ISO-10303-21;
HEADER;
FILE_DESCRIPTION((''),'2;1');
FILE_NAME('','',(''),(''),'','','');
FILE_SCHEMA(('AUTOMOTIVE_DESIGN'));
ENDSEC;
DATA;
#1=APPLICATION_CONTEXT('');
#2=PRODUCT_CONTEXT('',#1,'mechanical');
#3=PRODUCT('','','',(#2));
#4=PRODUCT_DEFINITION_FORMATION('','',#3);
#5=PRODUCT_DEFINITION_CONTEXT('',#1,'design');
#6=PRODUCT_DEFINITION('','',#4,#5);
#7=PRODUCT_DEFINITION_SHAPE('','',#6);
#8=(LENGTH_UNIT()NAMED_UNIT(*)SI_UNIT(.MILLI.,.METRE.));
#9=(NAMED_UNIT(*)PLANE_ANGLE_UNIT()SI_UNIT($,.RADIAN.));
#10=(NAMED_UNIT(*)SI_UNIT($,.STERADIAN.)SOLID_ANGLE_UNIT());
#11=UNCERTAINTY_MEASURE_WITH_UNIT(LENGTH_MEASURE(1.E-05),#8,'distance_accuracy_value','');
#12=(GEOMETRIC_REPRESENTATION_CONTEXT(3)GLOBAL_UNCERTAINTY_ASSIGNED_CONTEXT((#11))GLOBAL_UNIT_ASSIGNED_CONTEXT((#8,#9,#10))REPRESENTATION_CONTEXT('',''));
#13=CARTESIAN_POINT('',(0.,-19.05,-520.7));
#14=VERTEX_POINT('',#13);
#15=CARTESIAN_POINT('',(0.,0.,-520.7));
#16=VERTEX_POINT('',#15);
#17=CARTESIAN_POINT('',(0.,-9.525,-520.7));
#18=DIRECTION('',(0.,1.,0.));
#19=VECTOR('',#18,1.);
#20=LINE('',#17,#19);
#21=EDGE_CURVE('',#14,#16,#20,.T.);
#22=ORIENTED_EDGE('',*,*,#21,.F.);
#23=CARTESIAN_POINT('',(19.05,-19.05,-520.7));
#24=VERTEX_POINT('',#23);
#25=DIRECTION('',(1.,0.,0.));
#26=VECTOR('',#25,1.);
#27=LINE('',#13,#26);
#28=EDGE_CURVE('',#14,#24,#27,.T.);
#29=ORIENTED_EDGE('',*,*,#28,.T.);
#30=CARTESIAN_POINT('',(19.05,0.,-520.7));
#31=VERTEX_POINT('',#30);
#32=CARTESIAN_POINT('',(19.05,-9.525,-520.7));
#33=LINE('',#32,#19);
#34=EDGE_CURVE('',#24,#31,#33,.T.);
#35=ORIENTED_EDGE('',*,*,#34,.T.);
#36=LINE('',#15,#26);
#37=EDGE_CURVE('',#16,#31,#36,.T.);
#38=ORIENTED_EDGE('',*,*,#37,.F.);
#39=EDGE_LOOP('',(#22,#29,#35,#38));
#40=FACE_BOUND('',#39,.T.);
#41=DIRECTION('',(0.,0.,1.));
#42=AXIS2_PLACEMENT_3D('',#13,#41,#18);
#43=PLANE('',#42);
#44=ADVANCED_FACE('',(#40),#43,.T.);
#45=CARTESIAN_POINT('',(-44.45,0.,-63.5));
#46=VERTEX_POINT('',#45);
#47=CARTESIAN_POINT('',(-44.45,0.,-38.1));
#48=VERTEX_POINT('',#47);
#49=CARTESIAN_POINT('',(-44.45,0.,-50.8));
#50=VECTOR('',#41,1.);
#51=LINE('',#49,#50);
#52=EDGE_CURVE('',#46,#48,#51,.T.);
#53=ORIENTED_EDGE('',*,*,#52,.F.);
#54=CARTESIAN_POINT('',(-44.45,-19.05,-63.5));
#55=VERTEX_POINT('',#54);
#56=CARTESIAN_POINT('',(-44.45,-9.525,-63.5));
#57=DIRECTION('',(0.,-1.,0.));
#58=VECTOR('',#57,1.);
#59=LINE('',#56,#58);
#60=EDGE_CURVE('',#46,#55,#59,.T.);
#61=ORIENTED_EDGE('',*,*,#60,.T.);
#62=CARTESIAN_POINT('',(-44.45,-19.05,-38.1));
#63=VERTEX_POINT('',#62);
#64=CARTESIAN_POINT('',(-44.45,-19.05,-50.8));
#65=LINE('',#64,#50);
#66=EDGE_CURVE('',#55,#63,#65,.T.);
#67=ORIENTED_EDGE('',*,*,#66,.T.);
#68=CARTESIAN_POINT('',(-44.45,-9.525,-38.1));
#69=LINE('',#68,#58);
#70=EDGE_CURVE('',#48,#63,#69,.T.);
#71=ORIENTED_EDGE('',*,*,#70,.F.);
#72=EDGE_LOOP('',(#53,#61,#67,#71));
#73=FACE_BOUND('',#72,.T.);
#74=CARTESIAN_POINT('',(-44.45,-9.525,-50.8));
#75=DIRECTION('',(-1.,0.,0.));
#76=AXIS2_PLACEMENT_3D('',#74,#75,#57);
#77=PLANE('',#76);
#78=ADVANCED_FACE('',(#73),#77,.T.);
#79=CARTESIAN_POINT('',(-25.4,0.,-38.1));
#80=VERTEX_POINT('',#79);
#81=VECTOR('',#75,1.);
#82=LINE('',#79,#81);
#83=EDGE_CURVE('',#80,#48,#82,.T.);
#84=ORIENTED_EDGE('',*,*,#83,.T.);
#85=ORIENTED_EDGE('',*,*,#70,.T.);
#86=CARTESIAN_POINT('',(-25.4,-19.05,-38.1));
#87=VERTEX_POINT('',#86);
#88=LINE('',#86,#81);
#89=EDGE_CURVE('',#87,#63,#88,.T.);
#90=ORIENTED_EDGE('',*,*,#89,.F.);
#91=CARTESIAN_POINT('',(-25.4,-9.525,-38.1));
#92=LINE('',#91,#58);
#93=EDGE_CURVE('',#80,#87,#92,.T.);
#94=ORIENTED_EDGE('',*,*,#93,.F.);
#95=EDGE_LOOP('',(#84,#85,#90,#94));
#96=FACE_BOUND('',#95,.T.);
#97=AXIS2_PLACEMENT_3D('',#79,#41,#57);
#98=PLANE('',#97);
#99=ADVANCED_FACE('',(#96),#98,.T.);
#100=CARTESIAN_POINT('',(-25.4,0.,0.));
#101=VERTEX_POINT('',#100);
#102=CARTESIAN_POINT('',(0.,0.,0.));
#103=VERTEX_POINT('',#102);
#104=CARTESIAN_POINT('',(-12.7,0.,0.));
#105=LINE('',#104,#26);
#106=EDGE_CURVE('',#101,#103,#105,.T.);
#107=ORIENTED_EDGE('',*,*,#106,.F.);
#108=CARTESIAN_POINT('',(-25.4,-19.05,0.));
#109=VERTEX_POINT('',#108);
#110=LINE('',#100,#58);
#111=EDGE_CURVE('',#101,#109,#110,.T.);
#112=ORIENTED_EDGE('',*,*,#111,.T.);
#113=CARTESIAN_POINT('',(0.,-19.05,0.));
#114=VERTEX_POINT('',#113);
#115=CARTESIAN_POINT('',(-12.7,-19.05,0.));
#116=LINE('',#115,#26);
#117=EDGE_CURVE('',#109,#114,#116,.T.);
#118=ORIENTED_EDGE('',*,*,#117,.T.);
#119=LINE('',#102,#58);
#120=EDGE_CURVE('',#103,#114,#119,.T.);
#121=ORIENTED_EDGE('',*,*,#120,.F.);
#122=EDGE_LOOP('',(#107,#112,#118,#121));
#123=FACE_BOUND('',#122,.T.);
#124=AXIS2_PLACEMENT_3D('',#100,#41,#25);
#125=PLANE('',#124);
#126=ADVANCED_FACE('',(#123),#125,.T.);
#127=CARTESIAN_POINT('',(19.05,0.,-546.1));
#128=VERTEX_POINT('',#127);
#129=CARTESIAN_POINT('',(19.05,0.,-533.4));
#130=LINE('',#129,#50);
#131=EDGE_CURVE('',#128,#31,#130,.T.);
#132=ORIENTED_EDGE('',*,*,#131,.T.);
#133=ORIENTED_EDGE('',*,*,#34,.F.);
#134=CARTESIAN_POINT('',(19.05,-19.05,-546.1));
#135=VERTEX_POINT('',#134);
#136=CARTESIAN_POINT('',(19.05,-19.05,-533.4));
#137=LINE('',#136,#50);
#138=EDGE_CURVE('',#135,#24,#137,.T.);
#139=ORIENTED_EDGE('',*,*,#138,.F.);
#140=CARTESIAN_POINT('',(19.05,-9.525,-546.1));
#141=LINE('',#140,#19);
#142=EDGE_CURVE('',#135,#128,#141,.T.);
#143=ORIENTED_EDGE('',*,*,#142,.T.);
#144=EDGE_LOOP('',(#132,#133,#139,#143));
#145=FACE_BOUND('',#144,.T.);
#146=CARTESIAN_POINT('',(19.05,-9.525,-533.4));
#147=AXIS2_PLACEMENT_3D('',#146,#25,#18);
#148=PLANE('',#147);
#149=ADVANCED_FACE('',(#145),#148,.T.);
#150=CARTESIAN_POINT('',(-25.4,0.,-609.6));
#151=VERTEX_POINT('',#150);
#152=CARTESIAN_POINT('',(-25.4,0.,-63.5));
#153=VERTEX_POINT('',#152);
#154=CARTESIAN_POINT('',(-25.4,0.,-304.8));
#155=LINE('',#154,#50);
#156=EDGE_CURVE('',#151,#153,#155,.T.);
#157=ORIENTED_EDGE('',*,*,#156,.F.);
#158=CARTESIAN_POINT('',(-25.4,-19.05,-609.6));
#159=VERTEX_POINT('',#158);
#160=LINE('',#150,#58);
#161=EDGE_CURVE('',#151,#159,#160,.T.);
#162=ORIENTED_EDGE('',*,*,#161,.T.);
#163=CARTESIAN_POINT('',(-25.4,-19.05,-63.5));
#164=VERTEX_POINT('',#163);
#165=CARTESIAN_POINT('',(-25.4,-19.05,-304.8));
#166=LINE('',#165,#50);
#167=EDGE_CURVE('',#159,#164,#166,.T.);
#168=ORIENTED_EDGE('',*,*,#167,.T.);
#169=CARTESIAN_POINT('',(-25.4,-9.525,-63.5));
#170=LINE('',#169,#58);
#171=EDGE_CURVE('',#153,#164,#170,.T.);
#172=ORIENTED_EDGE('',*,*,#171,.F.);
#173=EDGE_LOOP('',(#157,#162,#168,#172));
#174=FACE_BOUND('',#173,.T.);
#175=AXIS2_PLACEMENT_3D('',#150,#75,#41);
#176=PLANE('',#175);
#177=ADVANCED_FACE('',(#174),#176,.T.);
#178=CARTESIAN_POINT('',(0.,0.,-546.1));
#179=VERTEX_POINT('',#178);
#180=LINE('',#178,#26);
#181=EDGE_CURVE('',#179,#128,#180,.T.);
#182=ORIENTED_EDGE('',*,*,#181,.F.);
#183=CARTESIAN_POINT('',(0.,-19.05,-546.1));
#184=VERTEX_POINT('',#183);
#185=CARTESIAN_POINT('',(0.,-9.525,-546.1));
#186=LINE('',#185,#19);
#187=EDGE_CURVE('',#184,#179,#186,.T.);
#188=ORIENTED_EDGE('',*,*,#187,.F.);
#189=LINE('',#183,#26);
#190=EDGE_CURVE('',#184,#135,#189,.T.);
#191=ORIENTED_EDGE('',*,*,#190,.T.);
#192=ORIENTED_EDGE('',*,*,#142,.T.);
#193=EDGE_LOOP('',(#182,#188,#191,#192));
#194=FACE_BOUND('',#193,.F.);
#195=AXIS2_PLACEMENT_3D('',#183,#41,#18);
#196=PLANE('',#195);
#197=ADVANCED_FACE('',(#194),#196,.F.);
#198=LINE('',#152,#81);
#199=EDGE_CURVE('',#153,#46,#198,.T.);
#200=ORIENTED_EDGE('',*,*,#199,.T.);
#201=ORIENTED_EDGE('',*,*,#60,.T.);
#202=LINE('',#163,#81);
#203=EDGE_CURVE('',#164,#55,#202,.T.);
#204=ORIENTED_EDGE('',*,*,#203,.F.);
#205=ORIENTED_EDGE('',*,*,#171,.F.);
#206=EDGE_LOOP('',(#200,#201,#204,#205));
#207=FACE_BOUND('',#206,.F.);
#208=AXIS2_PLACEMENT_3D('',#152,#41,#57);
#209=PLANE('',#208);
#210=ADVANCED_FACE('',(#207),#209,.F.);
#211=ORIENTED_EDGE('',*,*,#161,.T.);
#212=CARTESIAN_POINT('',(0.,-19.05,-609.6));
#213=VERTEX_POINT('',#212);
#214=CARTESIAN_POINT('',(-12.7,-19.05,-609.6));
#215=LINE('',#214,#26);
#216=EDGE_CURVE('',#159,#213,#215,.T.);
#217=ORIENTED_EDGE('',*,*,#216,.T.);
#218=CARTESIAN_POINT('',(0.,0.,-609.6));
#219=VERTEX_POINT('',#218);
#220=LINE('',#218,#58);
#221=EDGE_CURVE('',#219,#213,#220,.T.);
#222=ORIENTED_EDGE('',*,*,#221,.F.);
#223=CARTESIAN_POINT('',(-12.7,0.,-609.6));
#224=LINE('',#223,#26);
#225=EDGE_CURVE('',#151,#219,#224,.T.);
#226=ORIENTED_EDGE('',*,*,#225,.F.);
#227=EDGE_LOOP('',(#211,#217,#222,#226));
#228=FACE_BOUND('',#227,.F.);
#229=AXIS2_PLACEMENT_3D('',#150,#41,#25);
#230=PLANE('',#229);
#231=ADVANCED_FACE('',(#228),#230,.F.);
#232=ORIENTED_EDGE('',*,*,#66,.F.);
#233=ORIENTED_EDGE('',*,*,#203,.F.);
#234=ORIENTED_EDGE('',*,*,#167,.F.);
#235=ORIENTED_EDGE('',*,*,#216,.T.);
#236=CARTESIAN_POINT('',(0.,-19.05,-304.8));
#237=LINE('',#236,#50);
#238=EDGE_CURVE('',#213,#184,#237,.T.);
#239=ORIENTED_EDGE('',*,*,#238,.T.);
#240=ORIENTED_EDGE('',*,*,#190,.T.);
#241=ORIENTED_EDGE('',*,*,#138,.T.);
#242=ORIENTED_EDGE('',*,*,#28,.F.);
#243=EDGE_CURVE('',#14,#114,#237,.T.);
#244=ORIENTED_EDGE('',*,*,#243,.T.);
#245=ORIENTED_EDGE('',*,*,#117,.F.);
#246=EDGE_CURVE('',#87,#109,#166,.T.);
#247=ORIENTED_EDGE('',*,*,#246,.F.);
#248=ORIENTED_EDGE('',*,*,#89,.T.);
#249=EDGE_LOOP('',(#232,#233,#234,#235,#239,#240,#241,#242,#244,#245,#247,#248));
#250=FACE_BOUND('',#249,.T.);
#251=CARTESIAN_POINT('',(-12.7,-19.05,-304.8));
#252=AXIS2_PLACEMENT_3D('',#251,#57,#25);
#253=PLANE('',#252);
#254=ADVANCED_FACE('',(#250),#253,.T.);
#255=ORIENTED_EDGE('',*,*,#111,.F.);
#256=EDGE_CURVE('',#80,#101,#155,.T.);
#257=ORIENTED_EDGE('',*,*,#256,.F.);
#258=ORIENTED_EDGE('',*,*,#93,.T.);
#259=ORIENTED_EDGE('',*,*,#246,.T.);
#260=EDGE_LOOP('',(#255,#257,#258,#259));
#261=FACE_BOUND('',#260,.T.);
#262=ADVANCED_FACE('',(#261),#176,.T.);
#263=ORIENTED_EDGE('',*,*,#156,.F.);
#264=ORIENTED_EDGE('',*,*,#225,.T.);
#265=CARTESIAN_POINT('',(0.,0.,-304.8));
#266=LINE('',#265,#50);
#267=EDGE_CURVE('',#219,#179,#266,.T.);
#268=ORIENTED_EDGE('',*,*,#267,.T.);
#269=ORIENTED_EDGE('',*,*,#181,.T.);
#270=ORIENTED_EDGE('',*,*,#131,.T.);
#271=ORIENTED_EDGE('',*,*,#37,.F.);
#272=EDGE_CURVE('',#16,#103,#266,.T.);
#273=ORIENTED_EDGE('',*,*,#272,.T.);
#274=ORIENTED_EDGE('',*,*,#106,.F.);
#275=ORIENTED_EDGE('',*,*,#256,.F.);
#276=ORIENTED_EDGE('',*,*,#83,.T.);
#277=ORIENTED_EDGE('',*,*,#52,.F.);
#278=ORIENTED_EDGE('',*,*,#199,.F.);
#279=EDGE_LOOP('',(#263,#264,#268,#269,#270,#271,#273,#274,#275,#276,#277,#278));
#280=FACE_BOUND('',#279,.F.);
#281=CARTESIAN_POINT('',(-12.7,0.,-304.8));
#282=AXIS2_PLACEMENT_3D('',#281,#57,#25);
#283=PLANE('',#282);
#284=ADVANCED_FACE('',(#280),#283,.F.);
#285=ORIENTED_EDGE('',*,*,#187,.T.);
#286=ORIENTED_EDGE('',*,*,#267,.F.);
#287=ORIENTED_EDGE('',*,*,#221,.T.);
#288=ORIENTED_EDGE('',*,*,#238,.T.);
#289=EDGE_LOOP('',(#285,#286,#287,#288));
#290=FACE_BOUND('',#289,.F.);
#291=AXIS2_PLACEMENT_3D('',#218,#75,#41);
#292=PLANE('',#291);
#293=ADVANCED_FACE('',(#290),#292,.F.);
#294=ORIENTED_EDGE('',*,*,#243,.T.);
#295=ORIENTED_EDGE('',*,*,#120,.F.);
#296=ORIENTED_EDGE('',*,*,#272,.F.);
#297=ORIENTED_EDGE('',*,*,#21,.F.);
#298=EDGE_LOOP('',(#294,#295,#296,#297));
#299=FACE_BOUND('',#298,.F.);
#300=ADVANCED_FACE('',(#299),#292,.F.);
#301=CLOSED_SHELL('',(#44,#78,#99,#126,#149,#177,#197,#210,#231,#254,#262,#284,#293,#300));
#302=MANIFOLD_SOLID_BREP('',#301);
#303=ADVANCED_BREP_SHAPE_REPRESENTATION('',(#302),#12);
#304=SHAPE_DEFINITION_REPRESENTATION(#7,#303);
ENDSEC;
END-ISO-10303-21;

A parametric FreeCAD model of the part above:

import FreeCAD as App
import Part
import Sketcher
Q = App.Units.Quantity

doc = App.newDocument("Part")
params = doc.addObject("Spreadsheet::Sheet", "Params")
for row, (alias, value) in enumerate([
    ("sketch1_width", "1 in"),
    ("sketch1_height", "24 in"),
    ("pad1_length", "0.75 in"),
    ("sketch2_height", "1 in"),
    ("sketch2_width", "0.75 in"),
    ("pad2_length", "0.75 in"),
    ("sketch3_height", "1 in"),
    ("sketch3_width", "0.75 in"),
    ("pad3_length", "0.75 in"),
], start=1):
    params.set(f"A{row}", alias)
    params.set(f"B{row}", "=" + value)
    params.setAlias(f"B{row}", alias)

body = doc.addObject("PartDesign::Body", "Body")

# Sketch on XZ plane
sketch1 = body.newObject("Sketcher::SketchObject", "Sketch")
sketch1.AttachmentSupport = (doc.getObject("XZ_Plane"), [""])
sketch1.MapMode = "FlatFace"
sketch1.addGeometry([
    Part.LineSegment(App.Vector(-25, 0, 0), App.Vector(-25, -610, 0)),
    Part.LineSegment(App.Vector(-25, -610, 0), App.Vector(0, -610, 0)),
    Part.LineSegment(App.Vector(0, -610, 0), App.Vector(0, 0, 0)),
    Part.LineSegment(App.Vector(0, 0, 0), App.Vector(-25, 0, 0)),
], False)
sketch1.addConstraint([
    Sketcher.Constraint("Coincident", 0, 2, 1, 1),
    Sketcher.Constraint("Coincident", 1, 2, 2, 1),
    Sketcher.Constraint("Coincident", 2, 2, 3, 1),
    Sketcher.Constraint("Coincident", 3, 2, 0, 1),
    Sketcher.Constraint("Vertical", 0),
    Sketcher.Constraint("Horizontal", 1),
    Sketcher.Constraint("Vertical", 2),
    Sketcher.Constraint("Horizontal", 3),
    Sketcher.Constraint("Coincident", 2, 2, -1, 1),
    Sketcher.Constraint("DistanceX", 1, 1, 1, 2, Q("1 in")),
    Sketcher.Constraint("DistanceY", 0, 2, 0, 1, Q("24 in")),
])
sketch1.setExpression("Constraints[9]", "Params.sketch1_width")
sketch1.setExpression("Constraints[10]", "Params.sketch1_height")
pad1 = body.newObject("PartDesign::Pad", "Pad")
pad1.Profile = sketch1
pad1.setExpression("Length", "Params.pad1_length")

# Sketch on YZ plane
sketch2 = body.newObject("Sketcher::SketchObject", "Sketch001")
sketch2.AttachmentSupport = (doc.getObject("YZ_Plane"), [""])
sketch2.MapMode = "FlatFace"
sketch2.AttachmentOffset = App.Placement(App.Vector(0, 0, -1 * 25.4), App.Rotation())
sketch2.addGeometry([
    Part.LineSegment(App.Vector(0, -38, 0), App.Vector(0, -64, 0)),
    Part.LineSegment(App.Vector(0, -64, 0), App.Vector(-19, -64, 0)),
    Part.LineSegment(App.Vector(-19, -64, 0), App.Vector(-19, -38, 0)),
    Part.LineSegment(App.Vector(-19, -38, 0), App.Vector(0, -38, 0)),
], False)
sketch2.addConstraint([
    Sketcher.Constraint("Coincident", 0, 2, 1, 1),
    Sketcher.Constraint("Coincident", 1, 2, 2, 1),
    Sketcher.Constraint("Coincident", 2, 2, 3, 1),
    Sketcher.Constraint("Coincident", 3, 2, 0, 1),
    Sketcher.Constraint("Vertical", 0),
    Sketcher.Constraint("Horizontal", 1),
    Sketcher.Constraint("Vertical", 2),
    Sketcher.Constraint("Horizontal", 3),
    Sketcher.Constraint("PointOnObject", 0, 2, -2),
    Sketcher.Constraint("DistanceY", 0, 2, 0, 1, Q("1 in")),
    Sketcher.Constraint("DistanceX", 1, 2, 1, 1, Q("0.75 in")),
    Sketcher.Constraint("DistanceY", 0, 2, -1, 1, Q("2.5 in")),
])
sketch2.setExpression("Constraints[9]", "Params.sketch2_height")
sketch2.setExpression("Constraints[10]", "Params.sketch2_width")
pad2 = body.newObject("PartDesign::Pad", "Pad001")
pad2.Profile = sketch2
pad2.setExpression("Length", "Params.pad2_length")
pad2.Reversed = True

# Sketch on YZ plane
sketch3 = body.newObject("Sketcher::SketchObject", "Sketch002")
sketch3.AttachmentSupport = (doc.getObject("YZ_Plane"), [""])
sketch3.MapMode = "FlatFace"
sketch3.addGeometry([
    Part.LineSegment(App.Vector(-19, -521, 0), App.Vector(-19, -546, 0)),
    Part.LineSegment(App.Vector(-19, -546, 0), App.Vector(0, -546, 0)),
    Part.LineSegment(App.Vector(0, -546, 0), App.Vector(0, -521, 0)),
    Part.LineSegment(App.Vector(0, -521, 0), App.Vector(-19, -521, 0)),
], False)
sketch3.addConstraint([
    Sketcher.Constraint("Coincident", 0, 2, 1, 1),
    Sketcher.Constraint("Coincident", 1, 2, 2, 1),
    Sketcher.Constraint("Coincident", 2, 2, 3, 1),
    Sketcher.Constraint("Coincident", 3, 2, 0, 1),
    Sketcher.Constraint("Vertical", 0),
    Sketcher.Constraint("Horizontal", 1),
    Sketcher.Constraint("Vertical", 2),
    Sketcher.Constraint("Horizontal", 3),
    Sketcher.Constraint("PointOnObject", 1, 2, -2),
    Sketcher.Constraint("DistanceY", 0, 2, 0, 1, Q("1 in")),
    Sketcher.Constraint("DistanceX", 1, 1, 1, 2, Q("0.75 in")),
    Sketcher.Constraint("DistanceY", 0, 2, -1, 1, Q("21.5 in")),
])
sketch3.setExpression("Constraints[9]", "Params.sketch3_height")
sketch3.setExpression("Constraints[10]", "Params.sketch3_width")
pad3 = body.newObject("PartDesign::Pad", "Pad002")
pad3.Profile = sketch3
pad3.setExpression("Length", "Params.pad3_length")

doc.recompute()
